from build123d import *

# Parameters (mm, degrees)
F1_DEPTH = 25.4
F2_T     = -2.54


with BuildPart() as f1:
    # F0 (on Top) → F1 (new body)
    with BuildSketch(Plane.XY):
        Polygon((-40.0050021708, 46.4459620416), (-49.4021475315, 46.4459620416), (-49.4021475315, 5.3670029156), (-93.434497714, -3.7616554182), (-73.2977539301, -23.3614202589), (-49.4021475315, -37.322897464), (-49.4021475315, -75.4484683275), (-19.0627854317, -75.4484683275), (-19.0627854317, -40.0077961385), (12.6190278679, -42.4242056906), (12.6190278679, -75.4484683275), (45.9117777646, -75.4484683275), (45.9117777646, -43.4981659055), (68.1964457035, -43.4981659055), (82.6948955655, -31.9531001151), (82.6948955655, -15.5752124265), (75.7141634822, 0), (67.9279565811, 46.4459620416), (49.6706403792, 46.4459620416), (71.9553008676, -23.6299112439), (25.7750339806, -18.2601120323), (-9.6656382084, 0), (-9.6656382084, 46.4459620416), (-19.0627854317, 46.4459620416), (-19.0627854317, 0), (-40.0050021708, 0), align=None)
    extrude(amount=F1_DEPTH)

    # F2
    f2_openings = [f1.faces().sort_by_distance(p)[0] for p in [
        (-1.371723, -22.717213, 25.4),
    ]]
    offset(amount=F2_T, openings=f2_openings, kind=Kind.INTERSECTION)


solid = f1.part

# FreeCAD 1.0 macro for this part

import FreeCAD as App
import Part
import Sketcher
Q = App.Units.Quantity


def faces_at(feature, points):
    """Names of the faces that lie closest to the given points."""
    faces = feature.Shape.Faces
    near = lambda p: min(range(len(faces)), key=lambda i: faces[i].distToShape(Part.Vertex(*p))[0])
    return sorted({f"Face{near(p) + 1}" for p in points})


def add_polygon(sketch, points):
    """Adds a closed chain of lines whose ends are joined by coincident constraints."""
    first, n = sketch.GeometryCount, len(points)
    for a, b in zip(points, points[1:] + points[:1]):
        sketch.addGeometry(Part.LineSegment(App.Vector(*a, 0), App.Vector(*b, 0)), False)
    for i in range(n):
        sketch.addConstraint(Sketcher.Constraint("Coincident", first + i, 2, first + (i + 1) % n, 1))

doc = App.newDocument("Part")
params = doc.addObject("Spreadsheet::Sheet", "Params")
for row, (alias, value) in enumerate([
    ("pad1_length", "1 in"),
    ("thickness_wall", "0.1 in"),
], start=1):
    params.set(f"A{row}", alias)
    params.set(f"B{row}", "=" + value)
    params.setAlias(f"B{row}", alias)

body = doc.addObject("PartDesign::Body", "Body")

sketch1 = body.newObject("Sketcher::SketchObject", "Sketch")
sketch1.AttachmentSupport = (doc.getObject("XY_Plane"), [""])
sketch1.MapMode = "FlatFace"
add_polygon(sketch1, [(-40, 46), (-49, 46), (-49, 5), (-93, -4), (-73, -23), (-49, -37), (-49, -75), (-19, -75), (-19, -40), (13, -42), (13, -75), (46, -75), (46, -43), (68, -43), (83, -32), (83, -16), (76, 0), (68, 46), (50, 46), (72, -24), (26, -18), (-10, 0), (-10, 46), (-19, 46), (-19, 0), (-40, 0)])
sketch1.addConstraint([
    Sketcher.Constraint("Horizontal", 0),
    Sketcher.Constraint("Vertical", 1),
    Sketcher.Constraint("Vertical", 5),
    Sketcher.Constraint("Horizontal", 6),
    Sketcher.Constraint("Vertical", 7),
    Sketcher.Constraint("Vertical", 9),
    Sketcher.Constraint("Horizontal", 10),
    Sketcher.Constraint("Vertical", 11),
    Sketcher.Constraint("Horizontal", 12),
    Sketcher.Constraint("Vertical", 14),
    Sketcher.Constraint("Horizontal", 17),
    Sketcher.Constraint("Vertical", 21),
    Sketcher.Constraint("Horizontal", 22),
    Sketcher.Constraint("Vertical", 23),
    Sketcher.Constraint("Horizontal", 24),
    Sketcher.Constraint("Vertical", 25),
    Sketcher.Constraint("PointOnObject", 15, 2, -1),
    Sketcher.Constraint("PointOnObject", 20, 2, -1),
    Sketcher.Constraint("PointOnObject", 23, 2, -1),
    Sketcher.Constraint("Horizontal", 6, 2, 9, 2),
    Sketcher.Constraint("Horizontal", 0, 2, 16, 2),
    Sketcher.Constraint("Horizontal", 17, 2, 21, 2),
    Sketcher.Constraint("Vertical", 1, 2, 4, 2),
    Sketcher.Constraint("Vertical", 7, 2, 22, 2),
    Sketcher.Constraint("Equal", 0, 22),
    Sketcher.Constraint("DistanceX", 24, 2, -1, 1, Q("1.5750001 in")),
    Sketcher.Constraint("DistanceX", 10, 1, 10, 2, Q("33.29275 mm")),
    Sketcher.Constraint("DistanceY", 1, 2, 1, 1, Q("41.078959 mm")),
    Sketcher.Constraint("DistanceY", 5, 2, 5, 1, Q("38.125571 mm")),
    Sketcher.Constraint("DistanceY", 13, 2, -1, 1, Q("31.9531 mm")),
    Sketcher.Constraint("DistanceX", -1, 1, 18, 2, Q("71.955301 mm")),
    Sketcher.Constraint("DistanceY", 4, 2, 1, 2, Q("42.6899 mm")),
    Sketcher.Constraint("DistanceY", 7, 2, 4, 2, Q("2.684899 mm")),
    Sketcher.Constraint("DistanceY", 18, 2, 14, 2, Q("8.054699 mm")),
    Sketcher.Constraint("DistanceY", 18, 2, 19, 2, Q("5.369799 mm")),
    Sketcher.Constraint("Distance", 2, Q("44.968659 mm")),
    Sketcher.Constraint("Distance", 3, Q("28.10052 mm")),
    Sketcher.Constraint("Distance", 4, Q("27.675311 mm")),
    Sketcher.Constraint("Distance", 8, Q("31.773831 mm")),
    Sketcher.Constraint("Distance", 13, Q("18.53358 mm")),
    Sketcher.Constraint("Distance", 16, Q("47.09408 mm")),
    Sketcher.Constraint("DistanceX", 0, 2, 0, 1, Q("9.397145 mm")),
    Sketcher.Constraint("DistanceX", 6, 1, 6, 2, Q("30.339362 mm")),
    Sketcher.Constraint("DistanceX", 12, 1, 12, 2, Q("22.284668 mm")),
    Sketcher.Constraint("DistanceX", 17, 2, 17, 1, Q("18.257316 mm")),
    Sketcher.Constraint("DistanceY", 9, 2, 9, 1, Q("33.024263 mm")),
    Sketcher.Constraint("DistanceY", 11, 1, 11, 2, Q("31.950302 mm")),
    Sketcher.Constraint("DistanceY", 14, 1, 14, 2, Q("16.377888 mm")),
    Sketcher.Constraint("DistanceY", 21, 1, 21, 2, Q("46.445962 mm")),
    Sketcher.Constraint("DistanceY", 3, 2, -1, 1, Q("23.36142 mm")),
    Sketcher.Constraint("DistanceX", -1, 1, 17, 2, Q("49.67064 mm")),
    Sketcher.Constraint("DistanceX", 19, 2, 12, 2, Q("42.421412 mm")),
])
pad1 = body.newObject("PartDesign::Pad", "Pad")
pad1.Profile = sketch1
pad1.setExpression("Length", "Params.pad1_length")
doc.recompute()

thickness = body.newObject("PartDesign::Thickness", "Thickness")
thickness.Base = (pad1, faces_at(pad1, [(-5.37, -14.501, 25.4)]))
thickness.setExpression("Value", "Params.thickness_wall")
thickness.Reversed = True
thickness.Join = "Intersection"

doc.recompute()
